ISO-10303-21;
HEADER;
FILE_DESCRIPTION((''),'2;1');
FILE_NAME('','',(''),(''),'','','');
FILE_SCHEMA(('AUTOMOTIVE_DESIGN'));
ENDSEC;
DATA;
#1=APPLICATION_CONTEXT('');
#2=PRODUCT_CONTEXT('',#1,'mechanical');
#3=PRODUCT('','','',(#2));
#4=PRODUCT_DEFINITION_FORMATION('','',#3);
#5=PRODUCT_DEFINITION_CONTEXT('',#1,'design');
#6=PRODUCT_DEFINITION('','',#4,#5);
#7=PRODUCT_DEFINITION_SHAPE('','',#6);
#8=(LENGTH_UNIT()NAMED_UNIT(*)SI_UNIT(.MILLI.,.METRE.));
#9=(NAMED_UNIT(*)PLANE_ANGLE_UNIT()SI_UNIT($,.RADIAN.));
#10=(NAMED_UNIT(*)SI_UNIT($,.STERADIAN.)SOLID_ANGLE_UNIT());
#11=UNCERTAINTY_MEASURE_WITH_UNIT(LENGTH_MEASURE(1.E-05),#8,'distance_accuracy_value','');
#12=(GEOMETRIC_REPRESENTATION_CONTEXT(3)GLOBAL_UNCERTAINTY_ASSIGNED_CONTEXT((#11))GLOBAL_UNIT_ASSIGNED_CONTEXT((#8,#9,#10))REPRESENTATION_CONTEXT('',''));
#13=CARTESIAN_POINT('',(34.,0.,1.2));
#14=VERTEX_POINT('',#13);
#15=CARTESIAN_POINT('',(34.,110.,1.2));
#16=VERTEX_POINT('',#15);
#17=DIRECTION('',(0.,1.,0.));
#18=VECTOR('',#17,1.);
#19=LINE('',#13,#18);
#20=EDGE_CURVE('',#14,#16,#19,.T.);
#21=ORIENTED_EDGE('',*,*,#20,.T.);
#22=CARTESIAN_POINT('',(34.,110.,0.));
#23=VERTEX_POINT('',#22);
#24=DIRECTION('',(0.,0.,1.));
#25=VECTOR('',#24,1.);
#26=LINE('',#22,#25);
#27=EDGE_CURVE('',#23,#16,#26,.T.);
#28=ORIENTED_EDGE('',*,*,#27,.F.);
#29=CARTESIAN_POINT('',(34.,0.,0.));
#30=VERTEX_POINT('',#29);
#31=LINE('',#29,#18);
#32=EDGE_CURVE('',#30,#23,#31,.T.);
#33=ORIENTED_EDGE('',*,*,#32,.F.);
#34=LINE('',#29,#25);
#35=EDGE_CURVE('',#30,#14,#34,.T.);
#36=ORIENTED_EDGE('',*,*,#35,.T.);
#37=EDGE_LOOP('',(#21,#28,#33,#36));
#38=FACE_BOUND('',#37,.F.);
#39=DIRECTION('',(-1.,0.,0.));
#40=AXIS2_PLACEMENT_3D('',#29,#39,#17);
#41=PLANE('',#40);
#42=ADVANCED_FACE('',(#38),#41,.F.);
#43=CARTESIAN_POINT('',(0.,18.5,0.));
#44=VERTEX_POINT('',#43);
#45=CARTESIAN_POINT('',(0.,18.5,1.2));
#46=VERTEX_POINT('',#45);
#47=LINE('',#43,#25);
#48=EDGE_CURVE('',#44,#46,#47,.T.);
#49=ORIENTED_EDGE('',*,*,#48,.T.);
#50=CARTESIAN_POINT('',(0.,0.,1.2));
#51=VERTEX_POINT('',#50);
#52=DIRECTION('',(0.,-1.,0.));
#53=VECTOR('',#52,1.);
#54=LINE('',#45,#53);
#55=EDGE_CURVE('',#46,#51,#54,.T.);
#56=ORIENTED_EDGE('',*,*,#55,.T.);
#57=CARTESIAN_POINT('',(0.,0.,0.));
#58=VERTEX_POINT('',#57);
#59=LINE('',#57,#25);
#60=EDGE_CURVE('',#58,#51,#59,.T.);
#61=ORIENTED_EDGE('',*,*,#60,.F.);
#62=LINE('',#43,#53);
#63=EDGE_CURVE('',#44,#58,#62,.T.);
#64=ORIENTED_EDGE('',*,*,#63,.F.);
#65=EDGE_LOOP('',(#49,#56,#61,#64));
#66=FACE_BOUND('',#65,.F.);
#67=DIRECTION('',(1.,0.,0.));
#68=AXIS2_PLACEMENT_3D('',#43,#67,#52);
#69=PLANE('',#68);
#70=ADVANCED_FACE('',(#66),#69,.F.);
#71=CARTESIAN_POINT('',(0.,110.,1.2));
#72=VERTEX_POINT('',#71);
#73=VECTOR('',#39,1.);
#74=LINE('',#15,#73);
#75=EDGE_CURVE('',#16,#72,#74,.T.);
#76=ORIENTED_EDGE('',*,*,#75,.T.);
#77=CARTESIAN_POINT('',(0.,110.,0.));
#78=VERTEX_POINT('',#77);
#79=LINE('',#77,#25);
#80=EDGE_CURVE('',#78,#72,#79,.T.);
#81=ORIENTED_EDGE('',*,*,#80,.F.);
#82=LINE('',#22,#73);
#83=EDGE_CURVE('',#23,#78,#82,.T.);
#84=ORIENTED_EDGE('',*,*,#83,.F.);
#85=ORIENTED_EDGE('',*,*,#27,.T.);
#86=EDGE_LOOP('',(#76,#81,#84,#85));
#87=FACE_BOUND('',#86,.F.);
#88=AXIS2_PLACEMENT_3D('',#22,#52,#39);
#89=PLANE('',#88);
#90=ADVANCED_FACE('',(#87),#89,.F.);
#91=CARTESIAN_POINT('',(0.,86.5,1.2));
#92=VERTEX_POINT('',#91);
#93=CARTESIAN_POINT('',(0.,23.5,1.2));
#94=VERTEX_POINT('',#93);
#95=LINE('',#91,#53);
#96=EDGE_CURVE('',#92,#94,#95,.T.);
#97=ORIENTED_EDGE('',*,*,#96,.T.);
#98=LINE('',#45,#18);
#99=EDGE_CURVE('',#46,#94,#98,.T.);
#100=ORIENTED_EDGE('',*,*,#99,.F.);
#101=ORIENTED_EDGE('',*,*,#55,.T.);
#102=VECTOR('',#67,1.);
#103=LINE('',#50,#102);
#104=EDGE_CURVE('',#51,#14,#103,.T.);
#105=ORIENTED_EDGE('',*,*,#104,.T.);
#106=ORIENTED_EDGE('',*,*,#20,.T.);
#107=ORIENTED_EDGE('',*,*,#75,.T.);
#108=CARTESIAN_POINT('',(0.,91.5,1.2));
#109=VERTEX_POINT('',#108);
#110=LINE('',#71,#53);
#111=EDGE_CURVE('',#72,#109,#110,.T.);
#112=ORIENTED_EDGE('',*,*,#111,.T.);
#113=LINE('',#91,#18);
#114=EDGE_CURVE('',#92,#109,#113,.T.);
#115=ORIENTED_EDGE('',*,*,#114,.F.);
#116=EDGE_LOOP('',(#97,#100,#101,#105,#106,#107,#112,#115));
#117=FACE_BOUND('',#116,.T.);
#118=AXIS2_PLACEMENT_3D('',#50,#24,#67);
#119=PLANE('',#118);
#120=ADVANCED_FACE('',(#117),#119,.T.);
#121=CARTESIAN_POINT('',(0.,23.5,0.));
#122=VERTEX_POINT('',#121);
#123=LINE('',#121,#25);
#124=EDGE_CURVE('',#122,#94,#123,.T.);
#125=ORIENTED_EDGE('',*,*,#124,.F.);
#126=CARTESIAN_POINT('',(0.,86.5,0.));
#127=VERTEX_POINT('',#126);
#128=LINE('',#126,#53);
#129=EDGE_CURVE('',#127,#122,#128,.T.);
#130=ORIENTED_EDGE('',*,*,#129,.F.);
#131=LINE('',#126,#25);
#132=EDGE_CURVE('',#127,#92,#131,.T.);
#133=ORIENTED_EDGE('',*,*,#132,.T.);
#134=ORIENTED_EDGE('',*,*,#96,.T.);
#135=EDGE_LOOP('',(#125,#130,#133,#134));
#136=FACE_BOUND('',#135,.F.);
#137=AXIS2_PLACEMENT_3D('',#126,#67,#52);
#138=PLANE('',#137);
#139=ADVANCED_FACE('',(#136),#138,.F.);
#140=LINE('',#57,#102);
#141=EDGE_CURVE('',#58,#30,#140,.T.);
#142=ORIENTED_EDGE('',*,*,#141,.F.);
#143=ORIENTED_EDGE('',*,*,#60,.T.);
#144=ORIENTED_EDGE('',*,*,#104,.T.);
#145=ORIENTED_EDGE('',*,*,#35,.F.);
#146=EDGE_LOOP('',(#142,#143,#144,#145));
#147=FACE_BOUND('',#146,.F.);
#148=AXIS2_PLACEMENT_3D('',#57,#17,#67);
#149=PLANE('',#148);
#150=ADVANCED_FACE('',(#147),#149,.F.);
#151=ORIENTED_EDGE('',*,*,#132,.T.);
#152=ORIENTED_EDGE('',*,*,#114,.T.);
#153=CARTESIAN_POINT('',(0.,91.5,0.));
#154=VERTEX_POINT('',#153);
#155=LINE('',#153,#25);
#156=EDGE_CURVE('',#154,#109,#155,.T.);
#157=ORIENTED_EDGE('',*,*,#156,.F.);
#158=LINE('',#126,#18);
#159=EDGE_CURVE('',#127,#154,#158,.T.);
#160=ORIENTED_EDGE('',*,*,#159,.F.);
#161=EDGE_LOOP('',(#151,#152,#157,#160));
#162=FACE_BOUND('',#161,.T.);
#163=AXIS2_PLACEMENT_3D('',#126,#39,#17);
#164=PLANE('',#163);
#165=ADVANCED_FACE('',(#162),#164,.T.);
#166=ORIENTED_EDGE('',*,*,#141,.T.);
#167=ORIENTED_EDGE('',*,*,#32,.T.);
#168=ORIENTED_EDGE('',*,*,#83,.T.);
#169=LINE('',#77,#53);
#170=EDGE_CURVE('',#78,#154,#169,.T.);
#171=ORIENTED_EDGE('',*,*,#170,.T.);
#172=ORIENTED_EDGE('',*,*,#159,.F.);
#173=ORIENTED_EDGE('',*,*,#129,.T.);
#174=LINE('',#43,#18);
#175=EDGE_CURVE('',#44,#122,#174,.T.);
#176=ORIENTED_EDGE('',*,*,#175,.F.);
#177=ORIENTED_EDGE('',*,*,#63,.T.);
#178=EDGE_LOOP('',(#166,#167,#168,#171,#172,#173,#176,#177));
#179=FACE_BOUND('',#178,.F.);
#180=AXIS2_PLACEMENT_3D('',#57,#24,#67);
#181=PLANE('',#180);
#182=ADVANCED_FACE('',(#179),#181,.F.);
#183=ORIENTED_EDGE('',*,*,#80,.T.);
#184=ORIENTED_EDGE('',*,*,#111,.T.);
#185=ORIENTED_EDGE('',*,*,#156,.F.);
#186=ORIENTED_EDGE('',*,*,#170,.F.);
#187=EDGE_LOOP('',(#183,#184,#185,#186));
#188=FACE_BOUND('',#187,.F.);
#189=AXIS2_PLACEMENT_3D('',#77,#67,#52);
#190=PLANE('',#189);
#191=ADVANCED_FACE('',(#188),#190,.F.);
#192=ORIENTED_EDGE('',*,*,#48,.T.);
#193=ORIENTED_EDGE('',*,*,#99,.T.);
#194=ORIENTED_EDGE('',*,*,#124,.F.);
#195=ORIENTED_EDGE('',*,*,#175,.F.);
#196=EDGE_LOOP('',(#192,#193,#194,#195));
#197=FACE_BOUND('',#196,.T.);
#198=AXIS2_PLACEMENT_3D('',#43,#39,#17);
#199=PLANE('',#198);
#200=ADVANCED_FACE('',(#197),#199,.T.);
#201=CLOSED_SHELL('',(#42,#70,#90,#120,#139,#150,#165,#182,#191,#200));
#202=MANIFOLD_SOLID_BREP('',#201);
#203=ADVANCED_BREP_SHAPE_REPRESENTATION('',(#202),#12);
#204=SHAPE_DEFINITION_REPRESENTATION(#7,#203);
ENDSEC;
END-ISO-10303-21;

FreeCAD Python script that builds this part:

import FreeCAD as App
import Part
import Sketcher

V = App.Vector
Q = App.Units.Quantity

doc = App.newDocument("Part")
body = doc.addObject("PartDesign::Body", "Body")

sketch1 = doc.addObject("Sketcher::SketchObject", "Sketch")
body.addObject(sketch1)
sketch1.AttachmentSupport = (doc.XY_Plane, [""])
sketch1.MapMode = "FlatFace"
sketch1.addGeometry([
    Part.LineSegment(V(0, 110, 0), V(0, 0, 0)),
    Part.LineSegment(V(0, 0, 0), V(34, 0, 0)),
    Part.LineSegment(V(34, 0, 0), V(34, 110, 0)),
    Part.LineSegment(V(34, 110, 0), V(0, 110, 0)),
], False)
sketch1.addConstraint([
    Sketcher.Constraint("Coincident", 0, 2, 1, 1),
    Sketcher.Constraint("Coincident", 1, 2, 2, 1),
    Sketcher.Constraint("Coincident", 2, 2, 3, 1),
    Sketcher.Constraint("Coincident", 3, 2, 0, 1),
    Sketcher.Constraint("Vertical", 0),
    Sketcher.Constraint("Horizontal", 1),
    Sketcher.Constraint("Vertical", 2),
    Sketcher.Constraint("Horizontal", 3),
    Sketcher.Constraint("Coincident", 0, 2, -1, 1),
    Sketcher.Constraint("DistanceX", 1, 1, 1, 2, Q("34 mm")),
    Sketcher.Constraint("DistanceY", 0, 2, 0, 1, Q("110 mm")),
])
pad1 = doc.addObject("PartDesign::Pad", "Pad")
body.addObject(pad1)
pad1.Profile = sketch1
pad1.Length = 1.2

doc.recompute()
